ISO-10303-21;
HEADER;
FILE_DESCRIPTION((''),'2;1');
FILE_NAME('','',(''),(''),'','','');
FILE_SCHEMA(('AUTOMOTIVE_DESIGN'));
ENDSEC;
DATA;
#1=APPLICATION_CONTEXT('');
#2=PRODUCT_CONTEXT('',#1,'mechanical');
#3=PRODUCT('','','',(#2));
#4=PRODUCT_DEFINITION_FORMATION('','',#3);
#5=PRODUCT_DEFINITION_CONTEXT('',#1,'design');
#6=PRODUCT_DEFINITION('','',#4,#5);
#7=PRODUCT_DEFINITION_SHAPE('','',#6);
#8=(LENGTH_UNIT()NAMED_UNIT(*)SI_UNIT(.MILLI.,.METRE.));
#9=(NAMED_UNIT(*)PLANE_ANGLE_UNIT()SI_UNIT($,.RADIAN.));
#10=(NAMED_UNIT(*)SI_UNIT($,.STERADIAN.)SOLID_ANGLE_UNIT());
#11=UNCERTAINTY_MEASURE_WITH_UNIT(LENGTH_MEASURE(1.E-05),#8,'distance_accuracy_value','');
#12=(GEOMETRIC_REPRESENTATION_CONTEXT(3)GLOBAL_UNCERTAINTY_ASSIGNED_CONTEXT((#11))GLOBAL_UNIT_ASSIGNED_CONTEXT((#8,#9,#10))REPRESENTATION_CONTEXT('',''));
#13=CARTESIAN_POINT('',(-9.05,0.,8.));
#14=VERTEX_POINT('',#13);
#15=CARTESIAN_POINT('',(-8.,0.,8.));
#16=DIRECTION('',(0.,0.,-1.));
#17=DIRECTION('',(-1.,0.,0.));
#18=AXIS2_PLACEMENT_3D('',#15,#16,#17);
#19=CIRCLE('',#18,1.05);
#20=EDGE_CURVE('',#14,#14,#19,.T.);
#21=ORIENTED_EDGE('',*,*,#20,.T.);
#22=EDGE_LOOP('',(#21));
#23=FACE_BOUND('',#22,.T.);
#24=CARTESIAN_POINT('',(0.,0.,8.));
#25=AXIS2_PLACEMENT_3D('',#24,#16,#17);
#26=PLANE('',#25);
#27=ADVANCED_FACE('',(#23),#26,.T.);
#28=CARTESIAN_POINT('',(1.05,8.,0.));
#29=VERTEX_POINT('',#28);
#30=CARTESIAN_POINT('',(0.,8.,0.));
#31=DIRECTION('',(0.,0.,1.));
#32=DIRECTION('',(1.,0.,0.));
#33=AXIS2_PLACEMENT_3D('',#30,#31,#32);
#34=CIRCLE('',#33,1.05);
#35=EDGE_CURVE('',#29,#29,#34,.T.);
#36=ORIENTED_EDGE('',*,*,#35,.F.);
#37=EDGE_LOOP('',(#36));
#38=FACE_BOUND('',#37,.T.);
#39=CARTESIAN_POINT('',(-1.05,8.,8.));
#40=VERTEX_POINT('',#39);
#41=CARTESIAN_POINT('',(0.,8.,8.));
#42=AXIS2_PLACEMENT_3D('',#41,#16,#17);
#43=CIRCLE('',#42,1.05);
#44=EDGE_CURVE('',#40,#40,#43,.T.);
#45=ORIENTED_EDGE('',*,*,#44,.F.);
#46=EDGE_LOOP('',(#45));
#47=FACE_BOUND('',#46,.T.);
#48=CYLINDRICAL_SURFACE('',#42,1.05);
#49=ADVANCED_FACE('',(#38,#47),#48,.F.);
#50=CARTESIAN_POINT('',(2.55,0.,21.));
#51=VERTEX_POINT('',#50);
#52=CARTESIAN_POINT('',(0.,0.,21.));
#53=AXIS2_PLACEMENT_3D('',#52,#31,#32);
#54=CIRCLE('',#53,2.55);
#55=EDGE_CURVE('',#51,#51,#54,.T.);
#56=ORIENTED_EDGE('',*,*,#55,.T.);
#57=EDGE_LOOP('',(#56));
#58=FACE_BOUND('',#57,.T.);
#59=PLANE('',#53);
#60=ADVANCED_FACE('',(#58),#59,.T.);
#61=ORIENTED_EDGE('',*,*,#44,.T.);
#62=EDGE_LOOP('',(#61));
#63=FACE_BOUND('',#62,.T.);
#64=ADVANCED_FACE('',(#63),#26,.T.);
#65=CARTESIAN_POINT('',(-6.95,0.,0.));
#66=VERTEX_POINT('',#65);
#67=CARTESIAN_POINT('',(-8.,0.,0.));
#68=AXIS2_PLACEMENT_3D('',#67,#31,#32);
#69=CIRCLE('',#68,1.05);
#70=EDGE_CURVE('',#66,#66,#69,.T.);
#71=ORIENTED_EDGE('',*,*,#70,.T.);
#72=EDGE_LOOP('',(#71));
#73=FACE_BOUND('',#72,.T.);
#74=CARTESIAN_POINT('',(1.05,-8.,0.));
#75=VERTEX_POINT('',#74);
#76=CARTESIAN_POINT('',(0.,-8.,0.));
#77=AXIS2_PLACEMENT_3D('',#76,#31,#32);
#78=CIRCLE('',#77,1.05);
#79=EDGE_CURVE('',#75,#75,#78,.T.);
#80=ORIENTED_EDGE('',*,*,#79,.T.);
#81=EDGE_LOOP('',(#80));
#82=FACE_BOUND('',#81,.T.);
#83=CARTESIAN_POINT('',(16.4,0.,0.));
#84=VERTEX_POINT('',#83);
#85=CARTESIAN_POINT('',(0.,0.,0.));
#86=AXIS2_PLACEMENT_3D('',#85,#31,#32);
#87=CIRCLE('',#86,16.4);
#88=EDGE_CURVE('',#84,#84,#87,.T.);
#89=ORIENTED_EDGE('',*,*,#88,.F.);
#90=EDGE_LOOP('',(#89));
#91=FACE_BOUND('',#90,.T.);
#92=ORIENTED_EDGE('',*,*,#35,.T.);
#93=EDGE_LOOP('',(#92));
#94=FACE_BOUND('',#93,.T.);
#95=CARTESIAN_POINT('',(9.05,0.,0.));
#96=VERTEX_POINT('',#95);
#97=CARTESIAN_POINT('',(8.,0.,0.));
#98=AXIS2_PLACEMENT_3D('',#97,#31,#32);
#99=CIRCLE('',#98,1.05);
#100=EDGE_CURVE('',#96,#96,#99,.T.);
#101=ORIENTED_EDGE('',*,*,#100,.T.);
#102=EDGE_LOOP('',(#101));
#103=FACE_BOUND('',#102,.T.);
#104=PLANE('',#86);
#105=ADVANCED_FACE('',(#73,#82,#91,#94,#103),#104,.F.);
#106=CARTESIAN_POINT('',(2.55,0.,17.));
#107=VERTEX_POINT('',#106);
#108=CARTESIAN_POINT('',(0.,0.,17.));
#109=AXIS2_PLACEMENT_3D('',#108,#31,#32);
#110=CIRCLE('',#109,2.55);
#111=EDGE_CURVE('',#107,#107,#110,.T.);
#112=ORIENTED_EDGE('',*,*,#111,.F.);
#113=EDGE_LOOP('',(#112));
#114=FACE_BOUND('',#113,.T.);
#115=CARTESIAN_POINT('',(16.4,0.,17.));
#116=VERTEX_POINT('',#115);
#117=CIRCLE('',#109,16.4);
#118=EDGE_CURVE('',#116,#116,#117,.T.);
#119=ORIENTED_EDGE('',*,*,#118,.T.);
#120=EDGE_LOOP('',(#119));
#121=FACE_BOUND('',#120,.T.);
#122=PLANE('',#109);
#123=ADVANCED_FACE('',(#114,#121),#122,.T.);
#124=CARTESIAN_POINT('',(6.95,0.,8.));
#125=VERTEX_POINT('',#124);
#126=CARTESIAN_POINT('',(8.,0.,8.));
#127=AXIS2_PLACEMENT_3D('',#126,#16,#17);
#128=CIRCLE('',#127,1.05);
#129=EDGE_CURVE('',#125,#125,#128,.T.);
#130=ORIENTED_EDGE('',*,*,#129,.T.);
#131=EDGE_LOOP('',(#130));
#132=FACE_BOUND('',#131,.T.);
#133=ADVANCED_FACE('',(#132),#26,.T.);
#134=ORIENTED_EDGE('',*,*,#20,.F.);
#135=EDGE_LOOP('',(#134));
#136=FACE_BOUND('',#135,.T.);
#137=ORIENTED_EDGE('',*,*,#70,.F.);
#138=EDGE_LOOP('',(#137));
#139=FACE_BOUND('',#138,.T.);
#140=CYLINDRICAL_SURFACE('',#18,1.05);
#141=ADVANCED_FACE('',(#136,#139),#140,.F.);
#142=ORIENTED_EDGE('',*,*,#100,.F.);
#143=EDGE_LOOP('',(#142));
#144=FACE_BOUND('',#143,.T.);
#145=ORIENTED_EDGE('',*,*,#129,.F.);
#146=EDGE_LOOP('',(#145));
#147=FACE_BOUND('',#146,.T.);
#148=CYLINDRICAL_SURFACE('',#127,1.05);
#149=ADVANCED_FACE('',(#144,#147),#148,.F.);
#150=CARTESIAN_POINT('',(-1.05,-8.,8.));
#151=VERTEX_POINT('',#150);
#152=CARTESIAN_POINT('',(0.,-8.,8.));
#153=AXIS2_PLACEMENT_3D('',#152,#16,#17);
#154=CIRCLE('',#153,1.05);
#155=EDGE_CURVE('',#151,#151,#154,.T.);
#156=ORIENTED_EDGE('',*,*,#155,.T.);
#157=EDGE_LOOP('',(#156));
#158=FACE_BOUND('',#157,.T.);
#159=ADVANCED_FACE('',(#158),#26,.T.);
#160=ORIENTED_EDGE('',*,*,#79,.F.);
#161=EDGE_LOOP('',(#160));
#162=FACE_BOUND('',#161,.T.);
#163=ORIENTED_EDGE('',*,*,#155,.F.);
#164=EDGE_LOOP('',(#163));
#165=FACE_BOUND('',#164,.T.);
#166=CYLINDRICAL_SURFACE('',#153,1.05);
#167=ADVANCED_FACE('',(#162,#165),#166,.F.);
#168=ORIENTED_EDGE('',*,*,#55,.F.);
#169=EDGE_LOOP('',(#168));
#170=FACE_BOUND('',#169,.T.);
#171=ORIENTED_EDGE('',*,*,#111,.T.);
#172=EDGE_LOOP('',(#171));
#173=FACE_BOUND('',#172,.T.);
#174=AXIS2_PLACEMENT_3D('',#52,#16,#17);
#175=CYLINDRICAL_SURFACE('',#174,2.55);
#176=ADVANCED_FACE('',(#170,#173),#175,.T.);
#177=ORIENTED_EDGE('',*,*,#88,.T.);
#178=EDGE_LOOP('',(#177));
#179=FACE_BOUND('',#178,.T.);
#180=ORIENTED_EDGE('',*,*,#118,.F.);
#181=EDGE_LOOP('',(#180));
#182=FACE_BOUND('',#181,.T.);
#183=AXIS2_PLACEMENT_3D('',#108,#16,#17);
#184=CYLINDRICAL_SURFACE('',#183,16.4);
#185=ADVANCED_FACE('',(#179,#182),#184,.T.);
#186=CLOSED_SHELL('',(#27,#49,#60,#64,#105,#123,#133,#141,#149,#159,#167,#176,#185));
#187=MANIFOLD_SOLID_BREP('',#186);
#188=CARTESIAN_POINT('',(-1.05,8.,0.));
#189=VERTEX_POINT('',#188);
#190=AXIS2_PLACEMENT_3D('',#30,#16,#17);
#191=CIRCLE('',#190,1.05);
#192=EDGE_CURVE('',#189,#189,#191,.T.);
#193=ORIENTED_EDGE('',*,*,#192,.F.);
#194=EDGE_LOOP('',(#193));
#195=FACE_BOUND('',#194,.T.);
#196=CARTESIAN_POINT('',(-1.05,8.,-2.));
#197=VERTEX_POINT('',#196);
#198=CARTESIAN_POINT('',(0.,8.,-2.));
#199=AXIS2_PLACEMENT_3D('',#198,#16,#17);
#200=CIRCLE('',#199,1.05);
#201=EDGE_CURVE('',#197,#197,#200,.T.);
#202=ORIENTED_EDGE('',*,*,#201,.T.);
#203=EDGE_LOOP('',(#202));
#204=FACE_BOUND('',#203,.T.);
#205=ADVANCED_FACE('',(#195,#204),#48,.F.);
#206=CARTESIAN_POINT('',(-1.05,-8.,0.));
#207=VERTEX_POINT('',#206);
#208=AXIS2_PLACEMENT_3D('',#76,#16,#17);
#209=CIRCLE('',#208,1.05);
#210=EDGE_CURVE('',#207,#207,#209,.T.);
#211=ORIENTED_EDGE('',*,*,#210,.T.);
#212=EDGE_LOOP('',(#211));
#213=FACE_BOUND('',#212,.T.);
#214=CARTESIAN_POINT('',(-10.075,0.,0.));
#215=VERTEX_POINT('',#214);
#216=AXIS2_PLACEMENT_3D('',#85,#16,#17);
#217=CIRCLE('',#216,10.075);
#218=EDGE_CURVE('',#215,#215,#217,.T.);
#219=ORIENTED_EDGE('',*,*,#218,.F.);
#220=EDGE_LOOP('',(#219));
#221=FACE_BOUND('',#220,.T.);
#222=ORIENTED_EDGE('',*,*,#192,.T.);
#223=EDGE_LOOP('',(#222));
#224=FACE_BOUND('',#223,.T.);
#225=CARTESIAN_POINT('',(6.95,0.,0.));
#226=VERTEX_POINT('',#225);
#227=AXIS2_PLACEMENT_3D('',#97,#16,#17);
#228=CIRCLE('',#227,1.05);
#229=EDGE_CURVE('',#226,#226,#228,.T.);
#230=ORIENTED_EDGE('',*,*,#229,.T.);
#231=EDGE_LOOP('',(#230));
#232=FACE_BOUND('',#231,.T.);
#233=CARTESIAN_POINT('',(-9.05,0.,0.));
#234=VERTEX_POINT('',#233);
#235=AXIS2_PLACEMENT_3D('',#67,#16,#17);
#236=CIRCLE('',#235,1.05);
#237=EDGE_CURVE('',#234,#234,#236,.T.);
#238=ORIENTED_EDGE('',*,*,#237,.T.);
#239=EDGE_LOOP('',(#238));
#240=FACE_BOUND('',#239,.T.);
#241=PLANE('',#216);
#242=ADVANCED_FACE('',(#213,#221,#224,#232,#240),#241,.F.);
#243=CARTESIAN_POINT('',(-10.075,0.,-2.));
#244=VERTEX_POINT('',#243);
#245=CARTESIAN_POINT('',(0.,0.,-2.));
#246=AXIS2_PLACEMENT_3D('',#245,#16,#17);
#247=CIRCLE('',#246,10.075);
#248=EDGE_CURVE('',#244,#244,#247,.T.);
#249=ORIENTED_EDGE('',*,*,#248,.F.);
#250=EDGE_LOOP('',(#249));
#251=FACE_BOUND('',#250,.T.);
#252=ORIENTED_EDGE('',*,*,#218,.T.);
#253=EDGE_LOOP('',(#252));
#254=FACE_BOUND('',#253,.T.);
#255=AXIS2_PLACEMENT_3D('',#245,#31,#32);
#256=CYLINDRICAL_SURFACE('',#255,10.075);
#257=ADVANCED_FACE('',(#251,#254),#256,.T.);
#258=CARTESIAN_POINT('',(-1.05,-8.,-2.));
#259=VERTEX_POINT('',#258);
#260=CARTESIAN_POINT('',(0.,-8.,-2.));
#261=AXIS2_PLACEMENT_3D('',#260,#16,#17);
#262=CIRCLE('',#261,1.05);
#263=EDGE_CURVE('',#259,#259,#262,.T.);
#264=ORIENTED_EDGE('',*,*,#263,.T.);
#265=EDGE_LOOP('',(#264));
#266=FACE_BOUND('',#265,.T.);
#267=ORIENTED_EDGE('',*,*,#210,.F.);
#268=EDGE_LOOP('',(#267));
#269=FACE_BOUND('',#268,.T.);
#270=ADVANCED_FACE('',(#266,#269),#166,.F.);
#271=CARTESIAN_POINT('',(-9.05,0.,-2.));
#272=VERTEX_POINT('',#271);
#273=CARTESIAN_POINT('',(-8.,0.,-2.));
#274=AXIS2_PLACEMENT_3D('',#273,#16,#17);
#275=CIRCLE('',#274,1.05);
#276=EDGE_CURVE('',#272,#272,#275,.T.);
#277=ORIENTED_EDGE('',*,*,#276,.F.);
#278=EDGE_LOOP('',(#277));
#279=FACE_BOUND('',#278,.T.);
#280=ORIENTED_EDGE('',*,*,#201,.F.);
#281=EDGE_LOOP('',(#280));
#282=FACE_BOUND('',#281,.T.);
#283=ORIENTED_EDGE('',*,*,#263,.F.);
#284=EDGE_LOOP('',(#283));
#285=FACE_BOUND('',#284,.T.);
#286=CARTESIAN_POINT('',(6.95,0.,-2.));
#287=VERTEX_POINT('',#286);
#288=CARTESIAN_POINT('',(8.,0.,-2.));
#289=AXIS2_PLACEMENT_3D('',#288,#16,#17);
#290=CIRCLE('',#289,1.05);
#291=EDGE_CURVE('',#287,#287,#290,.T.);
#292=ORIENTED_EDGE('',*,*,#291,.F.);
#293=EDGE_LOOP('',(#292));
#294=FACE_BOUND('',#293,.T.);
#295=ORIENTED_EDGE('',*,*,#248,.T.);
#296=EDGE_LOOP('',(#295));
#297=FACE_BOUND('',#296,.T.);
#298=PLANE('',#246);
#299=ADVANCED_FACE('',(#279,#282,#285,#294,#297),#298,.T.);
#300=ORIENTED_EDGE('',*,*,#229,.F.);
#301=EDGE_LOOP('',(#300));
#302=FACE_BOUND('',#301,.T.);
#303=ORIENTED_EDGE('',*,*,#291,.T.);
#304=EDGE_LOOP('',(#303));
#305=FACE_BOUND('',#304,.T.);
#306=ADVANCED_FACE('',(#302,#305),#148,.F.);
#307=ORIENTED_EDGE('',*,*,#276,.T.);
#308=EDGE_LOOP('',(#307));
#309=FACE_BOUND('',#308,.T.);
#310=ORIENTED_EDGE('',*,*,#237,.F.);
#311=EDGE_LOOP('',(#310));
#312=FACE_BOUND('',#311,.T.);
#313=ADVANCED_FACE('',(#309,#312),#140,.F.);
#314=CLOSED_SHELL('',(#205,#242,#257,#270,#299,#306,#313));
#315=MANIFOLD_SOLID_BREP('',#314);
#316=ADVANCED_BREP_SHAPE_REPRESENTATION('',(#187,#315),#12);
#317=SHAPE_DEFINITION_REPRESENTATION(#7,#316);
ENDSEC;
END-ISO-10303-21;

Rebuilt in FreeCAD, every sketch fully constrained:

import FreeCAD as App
import Part
import Sketcher

V = App.Vector
Q = App.Units.Quantity

doc = App.newDocument("Part")
body = doc.addObject("PartDesign::Body", "Body")

# Sketch on XY plane
sketch1 = body.newObject("Sketcher::SketchObject", "Sketch")
sketch1.AttachmentSupport = (doc.getObject("XY_Plane"), [""])
sketch1.MapMode = "FlatFace"
sketch1.addGeometry(Part.Circle(V(0, 0, 0), V(0, 0, 1), 16.4), False)
sketch1.addConstraint([
    Sketcher.Constraint("Coincident", 0, 3, -1, 1),
    Sketcher.Constraint("Diameter", 0, Q("32.8 mm")),
])
pad1 = body.newObject("PartDesign::Pad", "Pad")
pad1.Profile = sketch1
pad1.Length = 17

# Sketch on XY plane
sketch2 = body.newObject("Sketcher::SketchObject", "Sketch001")
sketch2.AttachmentSupport = (doc.getObject("XY_Plane"), [""])
sketch2.MapMode = "FlatFace"
sketch2.AttachmentOffset = App.Placement(V(0, 0, 17), App.Rotation())
sketch2.addGeometry(Part.Circle(V(0, 0, 0), V(0, 0, 1), 2.55), False)
sketch2.addConstraint([
    Sketcher.Constraint("Coincident", 0, 3, -1, 1),
    Sketcher.Constraint("Diameter", 0, Q("5.1 mm")),
])
pad2 = body.newObject("PartDesign::Pad", "Pad001")
pad2.Profile = sketch2
pad2.Length = 4
body2 = doc.addObject("PartDesign::Body", "Body001")

# Sketch on XY plane
sketch3 = body2.newObject("Sketcher::SketchObject", "Sketch002")
sketch3.AttachmentSupport = (doc.getObject("XY_Plane001"), [""])
sketch3.MapMode = "FlatFace"
sketch3.addGeometry(Part.Circle(V(0, 0, 0), V(0, 0, 1), 10.075), False)
sketch3.addConstraint([
    Sketcher.Constraint("Coincident", 0, 3, -1, 1),
    Sketcher.Constraint("Diameter", 0, Q("20.15 mm")),
])
pad3 = body2.newObject("PartDesign::Pad", "Pad002")
pad3.Profile = sketch3
pad3.Length = 2
pad3.Reversed = True
body3 = doc.addObject("PartDesign::Body", "Body002")
body3.AllowCompound = True

# Sketch on XY plane
sketch4 = body3.newObject("Sketcher::SketchObject", "Sketch003")
sketch4.AttachmentSupport = (doc.getObject("XY_Plane002"), [""])
sketch4.MapMode = "FlatFace"
sketch4.AttachmentOffset = App.Placement(V(0, 0, -2), App.Rotation())
sketch4.addGeometry([
    Part.Circle(V(0, 8, 0), V(0, 0, 1), 1.05),
    Part.Circle(V(-8, 0, 0), V(0, 0, 1), 1.05),
    Part.Circle(V(0, -8, 0), V(0, 0, 1), 1.05),
    Part.Circle(V(8, 0, 0), V(0, 0, 1), 1.05),
], False)
sketch4.addConstraint([
    Sketcher.Constraint("Equal", 0, 1),
    Sketcher.Constraint("Equal", 1, 2),
    Sketcher.Constraint("Equal", 2, 3),
    Sketcher.Constraint("Symmetric", 0, 3, 2, 3, -1, 1),
    Sketcher.Constraint("Symmetric", 1, 3, 3, 3, -1, 1),
    Sketcher.Constraint("PointOnObject", 0, 3, -2),
    Sketcher.Constraint("PointOnObject", 1, 3, -1),
    Sketcher.Constraint("Diameter", 0, Q("2.1 mm")),
    Sketcher.Constraint("DistanceY", -1, 1, 0, 3, Q("8 mm")),
    Sketcher.Constraint("DistanceX", 1, 3, -1, 1, Q("8 mm")),
])
pad4 = body3.newObject("PartDesign::Pad", "Pad003")
pad4.Profile = sketch4
pad4.Length = 10
doc.recompute()

body4 = doc.addObject("PartDesign::Body", "Body003")
body4.BaseFeature = body3
boolean = body.newObject("PartDesign::Boolean", "Boolean")
boolean.Type = "Cut"
boolean.addObjects([body4])
doc.recompute()

boolean2 = body2.newObject("PartDesign::Boolean", "Boolean001")
boolean2.Type = "Cut"
boolean2.addObjects([body3])

doc.recompute()
